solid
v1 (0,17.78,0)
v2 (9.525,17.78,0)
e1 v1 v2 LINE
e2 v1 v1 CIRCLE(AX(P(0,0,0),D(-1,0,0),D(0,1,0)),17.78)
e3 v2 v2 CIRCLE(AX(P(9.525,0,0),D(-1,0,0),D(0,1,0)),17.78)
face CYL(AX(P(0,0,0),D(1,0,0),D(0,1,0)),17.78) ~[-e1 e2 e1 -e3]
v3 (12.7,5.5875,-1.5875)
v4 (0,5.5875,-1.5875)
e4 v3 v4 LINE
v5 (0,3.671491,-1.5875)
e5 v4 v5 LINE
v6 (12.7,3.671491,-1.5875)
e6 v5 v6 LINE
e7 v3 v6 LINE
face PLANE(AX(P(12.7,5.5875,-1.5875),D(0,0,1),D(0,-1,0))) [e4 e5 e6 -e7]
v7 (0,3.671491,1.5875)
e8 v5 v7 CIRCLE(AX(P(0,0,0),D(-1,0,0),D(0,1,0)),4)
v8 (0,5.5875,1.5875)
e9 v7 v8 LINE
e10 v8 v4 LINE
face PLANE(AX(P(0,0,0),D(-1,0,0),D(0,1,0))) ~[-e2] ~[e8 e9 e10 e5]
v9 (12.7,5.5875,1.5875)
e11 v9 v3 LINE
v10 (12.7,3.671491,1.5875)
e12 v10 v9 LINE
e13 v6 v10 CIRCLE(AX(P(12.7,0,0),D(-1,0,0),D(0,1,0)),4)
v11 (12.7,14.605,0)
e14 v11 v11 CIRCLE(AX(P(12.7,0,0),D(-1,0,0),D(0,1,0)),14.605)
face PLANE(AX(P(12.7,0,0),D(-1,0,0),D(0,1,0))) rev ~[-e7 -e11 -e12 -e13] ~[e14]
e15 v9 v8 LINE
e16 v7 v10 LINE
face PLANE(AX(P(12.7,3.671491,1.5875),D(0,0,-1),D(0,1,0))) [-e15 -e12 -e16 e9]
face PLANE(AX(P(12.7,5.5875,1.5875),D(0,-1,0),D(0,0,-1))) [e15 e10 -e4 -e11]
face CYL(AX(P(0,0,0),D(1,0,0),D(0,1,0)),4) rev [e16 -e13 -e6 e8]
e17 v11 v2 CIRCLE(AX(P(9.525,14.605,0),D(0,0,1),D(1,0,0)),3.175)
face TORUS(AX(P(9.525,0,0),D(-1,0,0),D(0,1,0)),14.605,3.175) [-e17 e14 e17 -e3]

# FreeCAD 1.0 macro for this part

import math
import FreeCAD as App
import Part
import Sketcher
from FreeCAD import Vector
Q = App.Units.Quantity


def add_polygon(sketch, points):
    """Adds a closed chain of lines whose ends are joined by coincident constraints."""
    first, n = sketch.GeometryCount, len(points)
    for a, b in zip(points, points[1:] + points[:1]):
        sketch.addGeometry(Part.LineSegment(App.Vector(*a, 0), App.Vector(*b, 0)), False)
    for i in range(n):
        sketch.addConstraint(Sketcher.Constraint("Coincident", first + i, 2, first + (i + 1) % n, 1))

doc = App.newDocument("Part")
body = doc.addObject("PartDesign::Body", "Body")

# Sketch on XY plane
sketch1 = body.newObject("Sketcher::SketchObject", "Sketch")
sketch1.AttachmentSupport = (doc.getObject("XY_Plane"), [""])
sketch1.MapMode = "FlatFace"
sketch1.addGeometry(Part.LineSegment(Vector(0, 17.8, 0), Vector(0, 4, 0)), False)
sketch1.addGeometry(Part.LineSegment(Vector(0, 4, 0), Vector(12.7, 4, 0)), False)
sketch1.addGeometry(Part.LineSegment(Vector(12.7, 4, 0), Vector(12.7, 14.6, 0)), False)
sketch1.addGeometry(Part.ArcOfCircle(Part.Circle(Vector(9.5, 14.6, 0), Vector(0, 0, 1), 3.2), math.radians(0), math.radians(90)), False)
sketch1.addGeometry(Part.LineSegment(Vector(9.5, 17.8, 0), Vector(0, 17.8, 0)), False)
sketch1.addConstraint(Sketcher.Constraint("Coincident", 0, 2, 1, 1))
sketch1.addConstraint(Sketcher.Constraint("Coincident", 1, 2, 2, 1))
sketch1.addConstraint(Sketcher.Constraint("Tangent", 2, 2, 3, 1))
sketch1.addConstraint(Sketcher.Constraint("Tangent", 3, 2, 4, 1))
sketch1.addConstraint(Sketcher.Constraint("Coincident", 4, 2, 0, 1))
sketch1.addConstraint(Sketcher.Constraint("Vertical", 0))
sketch1.addConstraint(Sketcher.Constraint("Horizontal", 1))
sketch1.addConstraint(Sketcher.Constraint("Vertical", 2))
sketch1.addConstraint(Sketcher.Constraint("Horizontal", 4))
sketch1.addConstraint(Sketcher.Constraint("PointOnObject", 0, 2, -2))
sketch1.addConstraint(Sketcher.Constraint("DistanceX", 1, 1, 1, 2, Q("0.5 in")))
sketch1.addConstraint(Sketcher.Constraint("Radius", 3, Q("0.125 in")))
sketch1.addConstraint(Sketcher.Constraint("DistanceY", -1, 1, 3, 2, Q("0.7 in")))
sketch1.addConstraint(Sketcher.Constraint("DistanceY", -1, 1, 0, 2, Q("4 mm")))
revolution = body.newObject("PartDesign::Revolution", "Revolution")
revolution.Profile = sketch1
revolution.ReferenceAxis = (sketch1, ["H_Axis"])
revolution.Angle = 360

# Sketch on YZ plane
sketch2 = body.newObject("Sketcher::SketchObject", "Sketch001")
sketch2.AttachmentSupport = (doc.getObject("YZ_Plane"), [""])
sketch2.MapMode = "FlatFace"
sketch2.AttachmentOffset = App.Placement(Vector(0, 0, 0.5 * 25.4), App.Rotation())
add_polygon(sketch2, [(5.6, -1.6), (5.6, 1.6), (2.4, 1.6), (2.4, -1.6)])  # lines 0-3
sketch2.addConstraint(Sketcher.Constraint("Vertical", 0))
sketch2.addConstraint(Sketcher.Constraint("Horizontal", 1))
sketch2.addConstraint(Sketcher.Constraint("Vertical", 2))
sketch2.addConstraint(Sketcher.Constraint("Horizontal", 3))
sketch2.addConstraint(Sketcher.Constraint("Equal", 3, 0))
sketch2.addConstraint(Sketcher.Constraint("DistanceX", 1, 2, 1, 1, Q("0.125 in")))
sketch2.addConstraint(Sketcher.Constraint("DistanceY", -1, 1, 0, 2, Q("0.0625 in")))
sketch2.addConstraint(Sketcher.Constraint("DistanceX", -1, 1, 0, 2, Q("5.5875 mm")))
pocket1 = body.newObject("PartDesign::Pocket", "Pocket")
pocket1.Profile = sketch2
pocket1.Type = "ThroughAll"

doc.recompute()
